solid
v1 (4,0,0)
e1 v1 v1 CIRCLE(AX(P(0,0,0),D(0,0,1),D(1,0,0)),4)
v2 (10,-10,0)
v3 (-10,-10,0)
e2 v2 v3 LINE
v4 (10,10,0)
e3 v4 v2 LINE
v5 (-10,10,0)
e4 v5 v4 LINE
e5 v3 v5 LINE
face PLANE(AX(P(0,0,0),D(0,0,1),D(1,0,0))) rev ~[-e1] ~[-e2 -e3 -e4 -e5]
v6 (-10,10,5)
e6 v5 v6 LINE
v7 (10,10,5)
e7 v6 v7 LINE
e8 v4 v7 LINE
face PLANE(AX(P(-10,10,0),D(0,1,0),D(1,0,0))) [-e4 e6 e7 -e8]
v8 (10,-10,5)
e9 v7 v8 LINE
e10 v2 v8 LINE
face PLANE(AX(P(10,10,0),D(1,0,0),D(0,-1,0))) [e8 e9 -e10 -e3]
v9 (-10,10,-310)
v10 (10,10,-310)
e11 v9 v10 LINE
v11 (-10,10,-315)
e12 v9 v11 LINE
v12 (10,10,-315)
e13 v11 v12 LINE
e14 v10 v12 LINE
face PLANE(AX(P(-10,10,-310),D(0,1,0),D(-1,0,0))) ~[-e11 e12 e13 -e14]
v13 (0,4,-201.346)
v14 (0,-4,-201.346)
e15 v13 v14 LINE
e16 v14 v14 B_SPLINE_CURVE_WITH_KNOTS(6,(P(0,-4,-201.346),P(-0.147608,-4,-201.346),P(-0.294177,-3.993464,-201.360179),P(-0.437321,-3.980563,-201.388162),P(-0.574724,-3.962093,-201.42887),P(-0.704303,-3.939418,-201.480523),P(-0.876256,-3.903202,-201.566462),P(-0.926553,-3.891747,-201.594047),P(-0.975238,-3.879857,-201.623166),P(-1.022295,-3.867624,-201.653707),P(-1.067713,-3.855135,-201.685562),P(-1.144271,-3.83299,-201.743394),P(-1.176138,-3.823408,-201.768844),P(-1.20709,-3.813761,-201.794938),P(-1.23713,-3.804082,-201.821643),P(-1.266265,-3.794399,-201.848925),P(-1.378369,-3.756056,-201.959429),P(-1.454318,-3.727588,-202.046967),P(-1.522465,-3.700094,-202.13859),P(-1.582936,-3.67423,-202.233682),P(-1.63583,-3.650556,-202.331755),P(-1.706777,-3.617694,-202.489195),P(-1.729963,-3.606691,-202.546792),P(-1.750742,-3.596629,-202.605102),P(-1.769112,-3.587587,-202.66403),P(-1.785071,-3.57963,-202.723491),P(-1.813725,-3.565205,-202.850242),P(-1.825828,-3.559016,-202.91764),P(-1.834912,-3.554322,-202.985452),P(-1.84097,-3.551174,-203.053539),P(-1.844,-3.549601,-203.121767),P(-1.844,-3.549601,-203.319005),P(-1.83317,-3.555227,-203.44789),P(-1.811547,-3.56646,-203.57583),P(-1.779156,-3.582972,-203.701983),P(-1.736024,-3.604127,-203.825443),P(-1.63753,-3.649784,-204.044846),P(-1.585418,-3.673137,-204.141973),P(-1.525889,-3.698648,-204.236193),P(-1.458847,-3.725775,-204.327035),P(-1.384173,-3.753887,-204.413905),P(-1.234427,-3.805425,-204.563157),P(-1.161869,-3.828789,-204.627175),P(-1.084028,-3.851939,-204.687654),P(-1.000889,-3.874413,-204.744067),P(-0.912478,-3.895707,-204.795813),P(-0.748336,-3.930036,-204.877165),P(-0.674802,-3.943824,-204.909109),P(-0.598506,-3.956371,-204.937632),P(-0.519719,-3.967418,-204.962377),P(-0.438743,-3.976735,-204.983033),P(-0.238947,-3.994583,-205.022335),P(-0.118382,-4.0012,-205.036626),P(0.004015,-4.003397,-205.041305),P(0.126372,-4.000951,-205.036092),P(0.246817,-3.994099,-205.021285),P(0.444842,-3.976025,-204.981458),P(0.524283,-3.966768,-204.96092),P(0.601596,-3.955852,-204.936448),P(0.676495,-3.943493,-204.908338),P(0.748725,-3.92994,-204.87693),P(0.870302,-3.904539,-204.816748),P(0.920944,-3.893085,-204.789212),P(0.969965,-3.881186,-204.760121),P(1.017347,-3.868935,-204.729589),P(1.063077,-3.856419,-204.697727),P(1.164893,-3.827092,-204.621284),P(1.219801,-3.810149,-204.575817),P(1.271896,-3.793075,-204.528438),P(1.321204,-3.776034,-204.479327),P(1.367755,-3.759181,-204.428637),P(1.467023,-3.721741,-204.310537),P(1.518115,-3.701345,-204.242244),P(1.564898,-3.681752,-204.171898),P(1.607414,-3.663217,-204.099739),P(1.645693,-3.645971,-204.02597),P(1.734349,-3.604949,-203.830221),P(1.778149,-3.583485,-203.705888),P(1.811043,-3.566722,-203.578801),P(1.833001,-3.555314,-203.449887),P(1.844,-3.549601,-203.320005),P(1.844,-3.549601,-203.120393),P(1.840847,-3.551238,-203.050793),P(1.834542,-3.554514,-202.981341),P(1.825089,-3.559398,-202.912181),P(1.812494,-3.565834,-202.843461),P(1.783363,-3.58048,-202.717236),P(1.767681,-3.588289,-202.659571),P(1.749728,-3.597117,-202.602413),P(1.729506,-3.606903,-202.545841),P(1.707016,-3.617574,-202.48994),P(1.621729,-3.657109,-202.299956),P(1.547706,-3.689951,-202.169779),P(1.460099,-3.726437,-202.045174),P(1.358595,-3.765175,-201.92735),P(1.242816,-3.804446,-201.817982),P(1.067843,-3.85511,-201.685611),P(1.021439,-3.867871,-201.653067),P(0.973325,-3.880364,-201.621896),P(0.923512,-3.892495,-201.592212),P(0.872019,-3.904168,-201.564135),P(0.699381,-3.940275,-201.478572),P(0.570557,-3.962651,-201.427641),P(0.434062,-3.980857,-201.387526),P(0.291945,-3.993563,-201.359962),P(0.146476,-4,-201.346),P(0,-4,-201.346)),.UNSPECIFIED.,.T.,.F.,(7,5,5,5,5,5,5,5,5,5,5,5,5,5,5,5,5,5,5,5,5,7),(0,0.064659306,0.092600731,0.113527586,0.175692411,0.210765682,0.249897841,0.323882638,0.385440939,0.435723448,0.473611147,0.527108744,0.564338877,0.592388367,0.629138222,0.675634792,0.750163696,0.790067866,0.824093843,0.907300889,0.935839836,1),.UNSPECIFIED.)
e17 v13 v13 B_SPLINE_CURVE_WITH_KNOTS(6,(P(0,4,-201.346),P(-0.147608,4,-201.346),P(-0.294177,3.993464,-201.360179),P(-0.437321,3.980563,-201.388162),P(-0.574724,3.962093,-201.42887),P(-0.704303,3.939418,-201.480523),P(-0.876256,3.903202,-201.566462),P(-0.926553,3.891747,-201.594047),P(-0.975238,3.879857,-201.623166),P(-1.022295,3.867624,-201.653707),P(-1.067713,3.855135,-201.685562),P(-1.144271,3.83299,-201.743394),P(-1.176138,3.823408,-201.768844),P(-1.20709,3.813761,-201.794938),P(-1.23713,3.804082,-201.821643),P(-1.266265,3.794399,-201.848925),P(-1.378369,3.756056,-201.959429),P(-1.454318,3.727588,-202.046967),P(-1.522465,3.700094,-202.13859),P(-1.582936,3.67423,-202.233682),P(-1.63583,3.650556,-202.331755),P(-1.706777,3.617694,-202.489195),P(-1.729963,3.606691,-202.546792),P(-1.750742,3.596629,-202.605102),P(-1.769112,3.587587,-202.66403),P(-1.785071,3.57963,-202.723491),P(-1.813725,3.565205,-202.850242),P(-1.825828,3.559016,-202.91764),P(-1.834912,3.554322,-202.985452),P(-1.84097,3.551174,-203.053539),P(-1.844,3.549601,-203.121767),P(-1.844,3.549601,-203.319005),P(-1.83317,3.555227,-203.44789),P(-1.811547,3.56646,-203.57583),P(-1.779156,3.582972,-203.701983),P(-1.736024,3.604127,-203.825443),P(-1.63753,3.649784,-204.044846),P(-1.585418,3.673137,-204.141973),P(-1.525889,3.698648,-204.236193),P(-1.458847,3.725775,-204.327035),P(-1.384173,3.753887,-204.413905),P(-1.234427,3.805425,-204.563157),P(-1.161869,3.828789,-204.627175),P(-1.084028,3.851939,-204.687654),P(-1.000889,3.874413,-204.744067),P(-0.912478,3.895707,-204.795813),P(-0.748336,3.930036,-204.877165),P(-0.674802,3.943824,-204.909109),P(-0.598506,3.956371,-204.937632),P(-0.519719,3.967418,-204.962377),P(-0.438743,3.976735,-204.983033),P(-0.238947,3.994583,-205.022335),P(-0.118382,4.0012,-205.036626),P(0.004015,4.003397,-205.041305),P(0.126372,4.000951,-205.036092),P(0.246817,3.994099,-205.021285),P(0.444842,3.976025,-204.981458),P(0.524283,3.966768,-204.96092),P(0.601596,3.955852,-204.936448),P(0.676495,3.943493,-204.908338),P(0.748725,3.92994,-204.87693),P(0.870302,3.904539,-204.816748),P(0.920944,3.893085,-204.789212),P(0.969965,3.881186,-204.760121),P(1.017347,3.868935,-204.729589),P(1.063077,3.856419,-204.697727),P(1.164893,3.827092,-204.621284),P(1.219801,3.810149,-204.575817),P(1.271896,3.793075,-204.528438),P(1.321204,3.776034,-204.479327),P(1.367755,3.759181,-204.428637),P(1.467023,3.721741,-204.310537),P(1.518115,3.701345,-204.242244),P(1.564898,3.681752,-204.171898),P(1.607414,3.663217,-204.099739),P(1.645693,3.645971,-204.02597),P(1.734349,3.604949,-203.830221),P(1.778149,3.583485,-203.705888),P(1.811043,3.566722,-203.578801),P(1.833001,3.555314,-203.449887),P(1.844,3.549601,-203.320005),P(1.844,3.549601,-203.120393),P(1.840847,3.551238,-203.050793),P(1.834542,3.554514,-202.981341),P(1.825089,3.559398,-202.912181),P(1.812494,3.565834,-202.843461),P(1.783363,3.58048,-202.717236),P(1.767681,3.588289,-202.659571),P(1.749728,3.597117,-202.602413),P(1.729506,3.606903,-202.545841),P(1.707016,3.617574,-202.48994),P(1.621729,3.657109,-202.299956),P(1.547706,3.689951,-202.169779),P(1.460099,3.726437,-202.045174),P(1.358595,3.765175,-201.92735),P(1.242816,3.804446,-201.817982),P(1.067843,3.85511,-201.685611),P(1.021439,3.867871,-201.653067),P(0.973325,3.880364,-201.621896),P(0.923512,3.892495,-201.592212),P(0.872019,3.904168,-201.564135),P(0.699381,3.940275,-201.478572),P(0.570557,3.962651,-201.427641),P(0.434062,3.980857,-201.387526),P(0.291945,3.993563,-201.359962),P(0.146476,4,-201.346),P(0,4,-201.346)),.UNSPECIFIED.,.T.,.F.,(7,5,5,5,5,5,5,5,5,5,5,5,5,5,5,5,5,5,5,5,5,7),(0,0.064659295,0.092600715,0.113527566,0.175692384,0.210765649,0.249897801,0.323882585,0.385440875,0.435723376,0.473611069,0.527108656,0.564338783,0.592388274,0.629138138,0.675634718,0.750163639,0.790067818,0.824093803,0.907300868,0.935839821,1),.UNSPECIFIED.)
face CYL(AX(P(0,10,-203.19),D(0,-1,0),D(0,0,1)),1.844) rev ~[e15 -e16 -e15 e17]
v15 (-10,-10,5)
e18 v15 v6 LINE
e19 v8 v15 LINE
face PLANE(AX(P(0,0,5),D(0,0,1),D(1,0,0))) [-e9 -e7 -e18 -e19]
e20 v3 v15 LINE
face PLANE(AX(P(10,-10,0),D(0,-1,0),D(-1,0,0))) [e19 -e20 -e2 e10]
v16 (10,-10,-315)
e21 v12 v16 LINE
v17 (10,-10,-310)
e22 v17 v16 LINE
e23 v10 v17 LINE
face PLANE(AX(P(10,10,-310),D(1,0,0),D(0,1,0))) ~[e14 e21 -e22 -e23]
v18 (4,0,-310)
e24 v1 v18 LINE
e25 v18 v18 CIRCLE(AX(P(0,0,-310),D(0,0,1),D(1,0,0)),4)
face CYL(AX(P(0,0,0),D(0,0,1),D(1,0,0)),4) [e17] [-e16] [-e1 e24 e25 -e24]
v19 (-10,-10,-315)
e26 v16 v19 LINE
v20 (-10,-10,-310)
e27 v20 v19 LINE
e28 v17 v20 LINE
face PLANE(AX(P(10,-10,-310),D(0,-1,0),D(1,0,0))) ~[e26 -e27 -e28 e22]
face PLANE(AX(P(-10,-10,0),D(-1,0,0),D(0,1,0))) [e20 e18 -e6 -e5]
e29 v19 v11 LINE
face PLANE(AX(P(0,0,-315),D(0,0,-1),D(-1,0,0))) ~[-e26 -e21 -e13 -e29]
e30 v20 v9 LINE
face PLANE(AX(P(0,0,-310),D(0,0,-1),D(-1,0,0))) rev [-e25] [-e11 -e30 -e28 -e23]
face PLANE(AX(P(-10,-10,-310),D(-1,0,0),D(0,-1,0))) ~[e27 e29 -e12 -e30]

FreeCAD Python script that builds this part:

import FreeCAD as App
import Part
import Sketcher
from FreeCAD import Vector

doc = App.newDocument("Part")
body = doc.addObject("PartDesign::Body", "Body")

# Sketch on XY plane
sketch1 = body.newObject("Sketcher::SketchObject", "Sketch")
sketch1.AttachmentSupport = (doc.getObject("XY_Plane"), [""])
sketch1.MapMode = "FlatFace"
sketch1.addGeometry(Part.Circle(Vector(0, 0, 0), Vector(0, 0, 1), 4), False)
sketch1.addConstraint(Sketcher.Constraint("Coincident", 0, 3, -1, 1))
sketch1.addConstraint(Sketcher.Constraint("Diameter", 0, 8.0))
pad1 = body.newObject("PartDesign::Pad", "Pad")
pad1.Profile = sketch1
pad1.Length = 310
pad1.Reversed = True

# Sketch on XY plane
sketch2 = body.newObject("Sketcher::SketchObject", "Sketch001")
sketch2.AttachmentSupport = (doc.getObject("XY_Plane"), [""])
sketch2.MapMode = "FlatFace"
sketch2.addGeometry(Part.LineSegment(Vector(10, 10, 0), Vector(-10, 10, 0)), False)
sketch2.addGeometry(Part.LineSegment(Vector(-10, 10, 0), Vector(-10, -10, 0)), False)
sketch2.addGeometry(Part.LineSegment(Vector(-10, -10, 0), Vector(10, -10, 0)), False)
sketch2.addGeometry(Part.LineSegment(Vector(10, -10, 0), Vector(10, 10, 0)), False)
sketch2.addConstraint(Sketcher.Constraint("Coincident", 0, 2, 1, 1))
sketch2.addConstraint(Sketcher.Constraint("Coincident", 1, 2, 2, 1))
sketch2.addConstraint(Sketcher.Constraint("Coincident", 2, 2, 3, 1))
sketch2.addConstraint(Sketcher.Constraint("Coincident", 3, 2, 0, 1))
sketch2.addConstraint(Sketcher.Constraint("Horizontal", 0))
sketch2.addConstraint(Sketcher.Constraint("Vertical", 1))
sketch2.addConstraint(Sketcher.Constraint("Horizontal", 2))
sketch2.addConstraint(Sketcher.Constraint("Vertical", 3))
sketch2.addConstraint(Sketcher.Constraint("Symmetric", 0, 2, 2, 2, -1, 1))
sketch2.addConstraint(Sketcher.Constraint("Equal", 2, 1))
sketch2.addConstraint(Sketcher.Constraint("DistanceX", 0, 2, 0, 1, 20.0))
pad2 = body.newObject("PartDesign::Pad", "Pad001")
pad2.Profile = sketch2
pad2.Length = 5
doc.recompute()

datumplane = body.newObject("PartDesign::Plane", "DatumPlane")
datumplane.AttachmentSupport = (doc.getObject("XY_Plane"), [""])
datumplane.MapMode = "FlatFace"
datumplane.AttachmentOffset = App.Placement(Vector(0, 0, -155), App.Rotation())
mirrored = body.newObject("PartDesign::Mirrored", "Mirrored")
mirrored.Originals = [pad2]
mirrored.MirrorPlane = (datumplane, [""])
body.Tip = mirrored

# Sketch on XZ plane
sketch3 = body.newObject("Sketcher::SketchObject", "Sketch002")
sketch3.AttachmentSupport = (doc.getObject("XZ_Plane"), [""])
sketch3.MapMode = "FlatFace"
sketch3.AttachmentOffset = App.Placement(Vector(0, 0, -10), App.Rotation())
sketch3.addGeometry(Part.Circle(Vector(0, -203.2, 0), Vector(0, 0, 1), 1.8), False)
sketch3.addConstraint(Sketcher.Constraint("PointOnObject", 0, 3, -2))
sketch3.addConstraint(Sketcher.Constraint("Diameter", 0, 3.688))
sketch3.addConstraint(Sketcher.Constraint("DistanceY", 0, 3, -1, 1, 203.19))
doc.recompute()
hole = body.newObject("PartDesign::Hole", "Hole")
hole.Profile = sketch3
hole.ThreadType = "None"
hole.Diameter = 3.688
hole.DepthType = "ThroughAll"
hole.Reversed = True

doc.recompute()
